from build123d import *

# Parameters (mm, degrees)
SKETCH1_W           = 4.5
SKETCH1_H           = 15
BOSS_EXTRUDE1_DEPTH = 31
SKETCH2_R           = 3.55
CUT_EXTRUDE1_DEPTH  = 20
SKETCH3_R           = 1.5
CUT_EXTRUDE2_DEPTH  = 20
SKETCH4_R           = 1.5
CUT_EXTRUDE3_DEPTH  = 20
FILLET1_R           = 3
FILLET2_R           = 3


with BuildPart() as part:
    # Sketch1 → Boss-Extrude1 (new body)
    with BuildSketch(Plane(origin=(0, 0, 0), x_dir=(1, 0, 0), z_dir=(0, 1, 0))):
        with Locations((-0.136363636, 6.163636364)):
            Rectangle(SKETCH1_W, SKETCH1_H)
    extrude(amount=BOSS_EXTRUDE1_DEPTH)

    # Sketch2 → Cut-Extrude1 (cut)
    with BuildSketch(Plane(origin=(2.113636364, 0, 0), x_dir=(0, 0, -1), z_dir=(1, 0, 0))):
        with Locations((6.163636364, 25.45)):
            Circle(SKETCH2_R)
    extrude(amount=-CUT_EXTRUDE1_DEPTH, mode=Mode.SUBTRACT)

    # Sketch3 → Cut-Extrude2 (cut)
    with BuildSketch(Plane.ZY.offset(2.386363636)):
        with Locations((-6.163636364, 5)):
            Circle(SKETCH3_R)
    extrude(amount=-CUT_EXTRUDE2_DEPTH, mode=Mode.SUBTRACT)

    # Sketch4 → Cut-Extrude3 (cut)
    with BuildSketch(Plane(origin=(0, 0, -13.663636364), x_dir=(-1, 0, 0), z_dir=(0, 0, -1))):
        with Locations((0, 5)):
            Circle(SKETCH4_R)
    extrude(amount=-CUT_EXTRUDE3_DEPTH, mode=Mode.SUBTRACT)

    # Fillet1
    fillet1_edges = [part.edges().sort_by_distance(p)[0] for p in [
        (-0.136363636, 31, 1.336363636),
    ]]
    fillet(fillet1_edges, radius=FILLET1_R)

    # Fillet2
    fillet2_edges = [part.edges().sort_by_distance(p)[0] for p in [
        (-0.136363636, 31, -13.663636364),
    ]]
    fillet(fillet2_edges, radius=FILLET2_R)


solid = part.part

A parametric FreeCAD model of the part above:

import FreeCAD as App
import Part
import Sketcher


def edges_at(feature, points):
    """Names of the edges that pass closest to the given points."""
    edges = feature.Shape.Edges
    near = lambda p: min(range(len(edges)), key=lambda i: edges[i].distToShape(Part.Vertex(*p))[0])
    return sorted({f"Edge{near(p) + 1}" for p in points})


def add_polygon(sketch, points):
    """Adds a closed chain of lines whose ends are joined by coincident constraints."""
    first, n = sketch.GeometryCount, len(points)
    for a, b in zip(points, points[1:] + points[:1]):
        sketch.addGeometry(Part.LineSegment(App.Vector(*a, 0), App.Vector(*b, 0)), False)
    for i in range(n):
        sketch.addConstraint(Sketcher.Constraint("Coincident", first + i, 2, first + (i + 1) % n, 1))

doc = App.newDocument("Part")
params = doc.addObject("Spreadsheet::Sheet", "Params")
for row, (alias, value) in enumerate([
    ("sketch1_height", "15 mm"),
    ("sketch1_width", "4.5 mm"),
    ("pad1_length", "31 mm"),
    ("sketch2_diameter", "7.1 mm"),
    ("pocket1_length", "20 mm"),
    ("sketch3_diameter", "3 mm"),
    ("pocket2_length", "20 mm"),
    ("sketch4_diameter", "3 mm"),
    ("pocket3_length", "20 mm"),
    ("fillet_radius", "3 mm"),
    ("fillet2_radius", "3 mm"),
], start=1):
    params.set(f"A{row}", alias)
    params.set(f"B{row}", "=" + value)
    params.setAlias(f"B{row}", alias)

body = doc.addObject("PartDesign::Body", "Body")

# Sketch on XZ plane
sketch1 = body.newObject("Sketcher::SketchObject", "Sketch")
sketch1.AttachmentSupport = (doc.getObject("XZ_Plane"), [""])
sketch1.MapMode = "FlatFace"
add_polygon(sketch1, [(-2.386364, -13.663636), (-2.386364, 1.336364), (2.113636, 1.336364), (2.113636, -13.663636)])  # lines 0-3
sketch1.addConstraint(Sketcher.Constraint("Vertical", 0))
sketch1.addConstraint(Sketcher.Constraint("Horizontal", 1))
sketch1.addConstraint(Sketcher.Constraint("Vertical", 2))
sketch1.addConstraint(Sketcher.Constraint("Horizontal", 3))
sketch1.addConstraint(Sketcher.Constraint("DistanceY", 0, 1, 0, 2, 15.0))
sketch1.addConstraint(Sketcher.Constraint("DistanceX", 1, 1, 1, 2, 4.5))
sketch1.addConstraint(Sketcher.Constraint("DistanceX", 0, 2, -1, 1, 2.386364))
sketch1.addConstraint(Sketcher.Constraint("DistanceY", -1, 1, 0, 2, 1.336364))
sketch1.setExpression("Constraints[8]", "Params.sketch1_height")
sketch1.setExpression("Constraints[9]", "Params.sketch1_width")
pad1 = body.newObject("PartDesign::Pad", "Pad")
pad1.Profile = sketch1
pad1.setExpression("Length", "Params.pad1_length")
pad1.Reversed = True

# Sketch on YZ plane
sketch2 = body.newObject("Sketcher::SketchObject", "Sketch001")
sketch2.AttachmentSupport = (doc.getObject("YZ_Plane"), [""])
sketch2.MapMode = "FlatFace"
sketch2.AttachmentOffset = App.Placement(App.Vector(0, 0, 2.113636), App.Rotation())
sketch2.addGeometry(Part.Circle(App.Vector(25.45, -6.163636, 0), App.Vector(0, 0, 1), 3.55), False)
sketch2.addConstraint(Sketcher.Constraint("Diameter", 0, 7.1))
sketch2.addConstraint(Sketcher.Constraint("DistanceX", -1, 1, 0, 3, 25.45))
sketch2.addConstraint(Sketcher.Constraint("DistanceY", 0, 3, -1, 1, 6.163636))
sketch2.setExpression("Constraints[0]", "Params.sketch2_diameter")
pocket1 = body.newObject("PartDesign::Pocket", "Pocket")
pocket1.Profile = sketch2
pocket1.setExpression("Length", "Params.pocket1_length")

# Sketch on YZ plane
sketch3 = body.newObject("Sketcher::SketchObject", "Sketch002")
sketch3.AttachmentSupport = (doc.getObject("YZ_Plane"), [""])
sketch3.MapMode = "FlatFace"
sketch3.AttachmentOffset = App.Placement(App.Vector(0, 0, -2.386364), App.Rotation())
sketch3.addGeometry(Part.Circle(App.Vector(5, -6.163636, 0), App.Vector(0, 0, 1), 1.5), False)
sketch3.addConstraint(Sketcher.Constraint("Diameter", 0, 3.0))
sketch3.addConstraint(Sketcher.Constraint("DistanceX", -1, 1, 0, 3, 5.0))
sketch3.addConstraint(Sketcher.Constraint("DistanceY", 0, 3, -1, 1, 6.163636))
sketch3.setExpression("Constraints[0]", "Params.sketch3_diameter")
pocket2 = body.newObject("PartDesign::Pocket", "Pocket001")
pocket2.Profile = sketch3
pocket2.setExpression("Length", "Params.pocket2_length")
pocket2.Reversed = True

# Sketch on XY plane
sketch4 = body.newObject("Sketcher::SketchObject", "Sketch003")
sketch4.AttachmentSupport = (doc.getObject("XY_Plane"), [""])
sketch4.MapMode = "FlatFace"
sketch4.AttachmentOffset = App.Placement(App.Vector(0, 0, -13.663636), App.Rotation())
sketch4.addGeometry(Part.Circle(App.Vector(0, 5, 0), App.Vector(0, 0, 1), 1.5), False)
sketch4.addConstraint(Sketcher.Constraint("PointOnObject", 0, 3, -2))
sketch4.addConstraint(Sketcher.Constraint("Diameter", 0, 3.0))
sketch4.addConstraint(Sketcher.Constraint("DistanceY", -1, 1, 0, 3, 5.0))
sketch4.setExpression("Constraints[1]", "Params.sketch4_diameter")
pocket3 = body.newObject("PartDesign::Pocket", "Pocket002")
pocket3.Profile = sketch4
pocket3.setExpression("Length", "Params.pocket3_length")
pocket3.Reversed = True
doc.recompute()

fillet = body.newObject("PartDesign::Fillet", "Fillet")
fillet.Base = (pocket3, edges_at(pocket3, [(-0.136, 31, 1.336)]))
fillet.setExpression("Radius", "Params.fillet_radius")
doc.recompute()

fillet2 = body.newObject("PartDesign::Fillet", "Fillet001")
fillet2.Base = (fillet, edges_at(fillet, [(-0.136, 31, -13.664)]))
fillet2.setExpression("Radius", "Params.fillet2_radius")

doc.recompute()
